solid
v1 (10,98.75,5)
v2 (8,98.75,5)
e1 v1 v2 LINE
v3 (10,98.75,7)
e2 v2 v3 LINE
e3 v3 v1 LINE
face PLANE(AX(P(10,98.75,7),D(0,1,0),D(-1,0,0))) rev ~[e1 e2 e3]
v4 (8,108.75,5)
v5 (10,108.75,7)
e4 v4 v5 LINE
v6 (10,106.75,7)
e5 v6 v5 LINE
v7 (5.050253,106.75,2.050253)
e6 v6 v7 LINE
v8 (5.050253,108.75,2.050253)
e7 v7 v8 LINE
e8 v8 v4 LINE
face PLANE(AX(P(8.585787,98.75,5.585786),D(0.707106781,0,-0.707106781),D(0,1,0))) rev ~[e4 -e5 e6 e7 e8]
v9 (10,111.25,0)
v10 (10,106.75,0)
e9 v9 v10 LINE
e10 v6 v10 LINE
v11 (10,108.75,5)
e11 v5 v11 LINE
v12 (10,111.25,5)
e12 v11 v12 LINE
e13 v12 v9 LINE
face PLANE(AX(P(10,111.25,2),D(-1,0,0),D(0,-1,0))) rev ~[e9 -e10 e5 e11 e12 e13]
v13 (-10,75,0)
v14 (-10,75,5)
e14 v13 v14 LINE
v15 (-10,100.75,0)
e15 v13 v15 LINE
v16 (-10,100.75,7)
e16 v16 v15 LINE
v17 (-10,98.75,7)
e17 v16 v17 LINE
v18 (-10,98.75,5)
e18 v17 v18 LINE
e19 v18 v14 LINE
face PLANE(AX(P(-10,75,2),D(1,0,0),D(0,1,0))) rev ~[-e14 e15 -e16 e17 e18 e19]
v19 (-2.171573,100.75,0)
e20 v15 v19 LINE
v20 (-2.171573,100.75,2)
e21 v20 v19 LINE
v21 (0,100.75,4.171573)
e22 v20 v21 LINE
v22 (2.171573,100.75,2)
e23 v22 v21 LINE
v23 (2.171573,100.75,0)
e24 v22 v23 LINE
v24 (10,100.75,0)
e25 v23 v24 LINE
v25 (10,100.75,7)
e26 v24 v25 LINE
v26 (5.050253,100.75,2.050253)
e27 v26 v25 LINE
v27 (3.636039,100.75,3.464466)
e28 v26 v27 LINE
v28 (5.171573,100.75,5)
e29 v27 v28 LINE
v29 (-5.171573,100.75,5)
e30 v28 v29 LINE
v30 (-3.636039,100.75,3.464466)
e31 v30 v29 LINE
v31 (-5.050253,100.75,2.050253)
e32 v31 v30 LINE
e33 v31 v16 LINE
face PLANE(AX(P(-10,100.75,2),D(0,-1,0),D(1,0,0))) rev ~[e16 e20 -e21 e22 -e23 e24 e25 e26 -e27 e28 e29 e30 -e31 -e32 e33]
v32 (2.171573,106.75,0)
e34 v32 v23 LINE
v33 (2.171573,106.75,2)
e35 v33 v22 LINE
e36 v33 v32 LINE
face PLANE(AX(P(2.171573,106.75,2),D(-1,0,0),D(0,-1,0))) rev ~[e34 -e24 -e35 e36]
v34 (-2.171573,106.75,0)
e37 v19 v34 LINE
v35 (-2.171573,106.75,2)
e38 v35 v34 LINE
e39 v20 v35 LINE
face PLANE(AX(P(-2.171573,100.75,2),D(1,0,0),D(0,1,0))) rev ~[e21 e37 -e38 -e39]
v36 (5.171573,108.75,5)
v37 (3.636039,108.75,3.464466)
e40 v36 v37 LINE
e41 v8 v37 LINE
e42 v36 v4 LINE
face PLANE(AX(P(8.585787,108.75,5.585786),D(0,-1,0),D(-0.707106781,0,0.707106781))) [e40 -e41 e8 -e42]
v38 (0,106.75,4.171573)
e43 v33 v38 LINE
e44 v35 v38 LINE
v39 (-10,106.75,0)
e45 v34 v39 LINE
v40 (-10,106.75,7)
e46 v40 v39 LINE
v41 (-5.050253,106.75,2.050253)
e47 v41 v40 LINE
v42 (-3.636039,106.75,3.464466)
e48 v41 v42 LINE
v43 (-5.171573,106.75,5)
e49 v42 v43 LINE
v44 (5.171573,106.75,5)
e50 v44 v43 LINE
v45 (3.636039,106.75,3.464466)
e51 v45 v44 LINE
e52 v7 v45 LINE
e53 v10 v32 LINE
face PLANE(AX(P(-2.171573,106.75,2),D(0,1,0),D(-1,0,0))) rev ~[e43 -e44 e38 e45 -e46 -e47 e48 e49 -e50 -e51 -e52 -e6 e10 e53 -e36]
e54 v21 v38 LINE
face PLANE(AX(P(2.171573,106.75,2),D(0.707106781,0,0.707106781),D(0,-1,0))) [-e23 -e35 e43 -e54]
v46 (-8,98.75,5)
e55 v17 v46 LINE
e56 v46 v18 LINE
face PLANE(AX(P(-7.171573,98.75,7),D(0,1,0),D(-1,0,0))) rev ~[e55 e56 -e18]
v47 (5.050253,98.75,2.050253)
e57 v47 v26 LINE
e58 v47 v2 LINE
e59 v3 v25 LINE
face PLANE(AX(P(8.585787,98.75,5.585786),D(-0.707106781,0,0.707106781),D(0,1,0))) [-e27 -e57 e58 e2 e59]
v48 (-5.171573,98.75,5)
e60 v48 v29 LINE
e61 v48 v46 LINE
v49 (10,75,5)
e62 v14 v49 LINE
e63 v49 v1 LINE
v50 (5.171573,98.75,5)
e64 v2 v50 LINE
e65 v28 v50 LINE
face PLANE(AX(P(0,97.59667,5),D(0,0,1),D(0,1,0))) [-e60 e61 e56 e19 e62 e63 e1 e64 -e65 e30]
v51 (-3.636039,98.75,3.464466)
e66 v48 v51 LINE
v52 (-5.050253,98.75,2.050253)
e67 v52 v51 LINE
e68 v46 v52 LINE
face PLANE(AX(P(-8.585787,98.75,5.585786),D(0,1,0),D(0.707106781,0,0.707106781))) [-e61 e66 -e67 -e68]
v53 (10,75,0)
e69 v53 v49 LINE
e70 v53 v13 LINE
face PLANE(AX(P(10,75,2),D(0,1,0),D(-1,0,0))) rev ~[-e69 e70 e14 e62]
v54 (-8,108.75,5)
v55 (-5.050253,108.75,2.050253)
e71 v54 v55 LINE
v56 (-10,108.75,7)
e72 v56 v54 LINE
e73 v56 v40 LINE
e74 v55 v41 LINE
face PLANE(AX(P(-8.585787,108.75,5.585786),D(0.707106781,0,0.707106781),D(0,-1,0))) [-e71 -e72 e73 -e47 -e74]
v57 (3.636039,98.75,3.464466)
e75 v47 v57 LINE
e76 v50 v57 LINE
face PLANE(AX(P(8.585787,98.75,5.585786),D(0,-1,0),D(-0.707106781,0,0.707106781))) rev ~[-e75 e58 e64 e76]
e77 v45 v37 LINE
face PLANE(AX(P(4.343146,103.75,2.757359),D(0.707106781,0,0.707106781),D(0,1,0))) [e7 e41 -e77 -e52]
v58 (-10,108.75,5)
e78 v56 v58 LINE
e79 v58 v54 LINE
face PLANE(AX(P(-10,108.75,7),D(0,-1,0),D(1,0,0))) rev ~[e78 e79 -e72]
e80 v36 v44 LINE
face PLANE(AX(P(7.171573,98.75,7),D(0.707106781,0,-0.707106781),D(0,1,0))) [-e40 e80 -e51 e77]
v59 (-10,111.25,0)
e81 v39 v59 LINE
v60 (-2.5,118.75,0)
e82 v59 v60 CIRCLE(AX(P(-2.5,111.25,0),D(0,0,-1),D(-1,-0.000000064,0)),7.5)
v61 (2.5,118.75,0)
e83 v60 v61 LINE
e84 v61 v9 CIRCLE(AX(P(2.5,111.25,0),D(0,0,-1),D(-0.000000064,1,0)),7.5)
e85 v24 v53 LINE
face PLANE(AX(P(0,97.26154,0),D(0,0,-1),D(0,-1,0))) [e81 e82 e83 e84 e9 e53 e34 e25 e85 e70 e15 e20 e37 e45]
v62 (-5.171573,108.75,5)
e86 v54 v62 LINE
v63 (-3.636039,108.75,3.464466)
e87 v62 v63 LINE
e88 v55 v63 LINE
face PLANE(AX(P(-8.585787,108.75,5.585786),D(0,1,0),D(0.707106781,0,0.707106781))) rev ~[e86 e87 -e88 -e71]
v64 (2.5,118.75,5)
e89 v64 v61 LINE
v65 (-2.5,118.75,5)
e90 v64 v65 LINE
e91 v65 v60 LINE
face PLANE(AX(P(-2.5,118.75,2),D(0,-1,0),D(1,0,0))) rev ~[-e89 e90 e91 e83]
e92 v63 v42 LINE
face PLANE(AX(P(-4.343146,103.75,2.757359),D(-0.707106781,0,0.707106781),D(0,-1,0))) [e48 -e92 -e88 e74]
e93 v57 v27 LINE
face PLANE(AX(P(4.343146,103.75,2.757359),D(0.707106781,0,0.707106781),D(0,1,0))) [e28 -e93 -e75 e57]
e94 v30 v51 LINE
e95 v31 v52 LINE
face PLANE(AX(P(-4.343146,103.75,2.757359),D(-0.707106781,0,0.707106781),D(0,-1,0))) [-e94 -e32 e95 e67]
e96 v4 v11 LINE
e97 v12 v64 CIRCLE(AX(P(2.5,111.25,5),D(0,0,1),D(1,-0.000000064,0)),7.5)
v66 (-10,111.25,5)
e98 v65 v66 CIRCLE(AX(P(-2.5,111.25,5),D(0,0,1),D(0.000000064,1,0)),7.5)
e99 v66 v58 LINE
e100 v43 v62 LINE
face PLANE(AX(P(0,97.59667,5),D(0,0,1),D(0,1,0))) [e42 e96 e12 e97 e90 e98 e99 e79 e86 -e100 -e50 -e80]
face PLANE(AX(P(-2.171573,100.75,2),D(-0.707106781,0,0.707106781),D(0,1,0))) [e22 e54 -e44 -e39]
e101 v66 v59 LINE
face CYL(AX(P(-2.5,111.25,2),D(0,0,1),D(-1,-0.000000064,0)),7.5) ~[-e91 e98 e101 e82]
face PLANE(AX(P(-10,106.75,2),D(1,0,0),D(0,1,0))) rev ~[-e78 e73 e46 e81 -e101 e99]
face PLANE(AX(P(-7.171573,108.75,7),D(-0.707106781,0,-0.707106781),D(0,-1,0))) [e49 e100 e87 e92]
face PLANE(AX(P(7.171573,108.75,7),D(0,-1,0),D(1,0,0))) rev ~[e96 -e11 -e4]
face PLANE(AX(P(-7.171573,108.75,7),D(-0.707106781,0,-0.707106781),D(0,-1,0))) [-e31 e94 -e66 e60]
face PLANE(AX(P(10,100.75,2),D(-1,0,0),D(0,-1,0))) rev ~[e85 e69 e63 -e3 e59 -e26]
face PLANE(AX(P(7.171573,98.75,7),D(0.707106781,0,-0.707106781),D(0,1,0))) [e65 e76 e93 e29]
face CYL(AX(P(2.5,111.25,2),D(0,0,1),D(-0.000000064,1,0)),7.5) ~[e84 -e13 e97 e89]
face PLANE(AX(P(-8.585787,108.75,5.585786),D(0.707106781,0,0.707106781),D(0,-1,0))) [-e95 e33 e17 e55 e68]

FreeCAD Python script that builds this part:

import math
import FreeCAD as App
import Part
import Sketcher
Q = App.Units.Quantity

doc = App.newDocument("Part")
params = doc.addObject("Spreadsheet::Sheet", "Params")
for row, (alias, value) in enumerate([
    ("sketch1_radius", "7.5 mm"),
    ("sketch1_width", "20 mm"),
    ("sketch1_height", "36.25 mm"),
    ("pad1_length", "5 mm"),
    ("sketch2_height", "5 mm"),
    ("sketch2_length", "2.000001 mm"),
    ("pocket1_length", "3 mm"),
    ("pocket1_length2", "3 mm"),
    ("sketch3_width", "10 mm"),
    ("sketch3_height", "2 mm"),
    ("pocket2_length", "5 mm"),
    ("pocket2_length2", "2 mm"),
    ("sketch4_width", "10 mm"),
    ("sketch4_height", "2 mm"),
    ("pocket3_length", "5 mm"),
    ("pocket3_length2", "2 mm"),
    ("sketch5_width", "6 mm"),
    ("sketch5_height", "5 mm"),
    ("pocket4_length", "5 mm"),
    ("sketch6_width", "6 mm"),
    ("sketch6_height", "5 mm"),
    ("pocket5_length", "5 mm"),
    ("sketch7_radius", "7.5 mm"),
    ("sketch7_width", "5 mm"),
    ("sketch7_height", "6 mm"),
    ("sketch7_height2", "4.5 mm"),
    ("sketch7_height3", "25.75 mm"),
    ("pad2_length", "2 mm"),
    ("sketch8_radius", "7.5 mm"),
    ("sketch8_width", "20 mm"),
    ("sketch8_height", "6 mm"),
    ("sketch8_height2", "2 mm"),
    ("sketch8_height3", "2.5 mm"),
    ("pocket6_length", "2 mm"),
    ("sketch9_width", "6 mm"),
    ("pocket7_length", "5 mm"),
    ("sketch10_width", "6 mm"),
    ("pocket8_length", "5 mm"),
], start=1):
    params.set(f"A{row}", alias)
    params.set(f"B{row}", "=" + value)
    params.setAlias(f"B{row}", alias)

body = doc.addObject("PartDesign::Body", "Body")

sketch1 = body.newObject("Sketcher::SketchObject", "Sketch")
sketch1.AttachmentSupport = (doc.getObject("XY_Plane"), [""])
sketch1.MapMode = "FlatFace"
sketch1.addGeometry(Part.LineSegment(App.Vector(-10, -29, 0), App.Vector(10, -29, 0)), False)
sketch1.addGeometry(Part.LineSegment(App.Vector(10, -29, 0), App.Vector(10, 8, 0)), False)
sketch1.addGeometry(Part.ArcOfCircle(Part.Circle(App.Vector(3, 8, 0), App.Vector(0, 0, 1), 7), math.radians(0), math.radians(90)), False)
sketch1.addGeometry(Part.LineSegment(App.Vector(2, 15, 0), App.Vector(-2, 15, 0)), False)
sketch1.addGeometry(Part.ArcOfCircle(Part.Circle(App.Vector(-3, 8, 0), App.Vector(0, 0, 1), 7), math.radians(90), math.radians(180)), False)
sketch1.addGeometry(Part.LineSegment(App.Vector(-10, 8, 0), App.Vector(-10, -29, 0)), False)
sketch1.addConstraint(Sketcher.Constraint("Coincident", 0, 2, 1, 1))
sketch1.addConstraint(Sketcher.Constraint("Tangent", 1, 2, 2, 1))
sketch1.addConstraint(Sketcher.Constraint("Tangent", 2, 2, 3, 1))
sketch1.addConstraint(Sketcher.Constraint("Tangent", 3, 2, 4, 1))
sketch1.addConstraint(Sketcher.Constraint("Tangent", 4, 2, 5, 1))
sketch1.addConstraint(Sketcher.Constraint("Coincident", 5, 2, 0, 1))
sketch1.addConstraint(Sketcher.Constraint("Horizontal", 0))
sketch1.addConstraint(Sketcher.Constraint("Vertical", 1))
sketch1.addConstraint(Sketcher.Constraint("Horizontal", 3))
sketch1.addConstraint(Sketcher.Constraint("Vertical", 5))
sketch1.addConstraint(Sketcher.Constraint("Equal", 2, 4))
sketch1.addConstraint(Sketcher.Constraint("Radius", 2, Q("7.5 mm")))
sketch1.addConstraint(Sketcher.Constraint("DistanceX", 0, 1, 0, 2, Q("20 mm")))
sketch1.addConstraint(Sketcher.Constraint("DistanceX", -1, 1, 0, 2, Q("10 mm")))
sketch1.addConstraint(Sketcher.Constraint("DistanceY", -1, 1, 2, 2, Q("15 mm")))
sketch1.addConstraint(Sketcher.Constraint("DistanceY", 1, 1, 1, 2, Q("36.25 mm")))
sketch1.setExpression("Constraints[11]", "Params.sketch1_radius")
sketch1.setExpression("Constraints[12]", "Params.sketch1_width")
sketch1.setExpression("Constraints[15]", "Params.sketch1_height")
pad1 = body.newObject("PartDesign::Pad", "Pad")
pad1.Profile = sketch1
pad1.setExpression("Length", "Params.pad1_length")

sketch2 = body.newObject("Sketcher::SketchObject", "Sketch001")
sketch2.AttachmentSupport = (doc.getObject("XZ_Plane"), [""])
sketch2.MapMode = "FlatFace"
sketch2.addGeometry(Part.LineSegment(App.Vector(-10, 5, 0), App.Vector(-10, 0, 0)), False)
sketch2.addGeometry(Part.LineSegment(App.Vector(-10, 0, 0), App.Vector(-2.2, 0, 0)), False)
sketch2.addGeometry(Part.LineSegment(App.Vector(-2.2, 0, 0), App.Vector(-8.6, 6.4, 0)), False)
sketch2.addGeometry(Part.LineSegment(App.Vector(-8.6, 6.4, 0), App.Vector(-10, 5, 0)), False)
sketch2.addGeometry(Part.LineSegment(App.Vector(10, 0, 0), App.Vector(10, 5, 0)), False)
sketch2.addGeometry(Part.LineSegment(App.Vector(10, 5, 0), App.Vector(8.6, 6.4, 0)), False)
sketch2.addGeometry(Part.LineSegment(App.Vector(8.6, 6.4, 0), App.Vector(2.2, 0, 0)), False)
sketch2.addGeometry(Part.LineSegment(App.Vector(2.2, 0, 0), App.Vector(10, 0, 0)), False)
sketch2.addConstraint(Sketcher.Constraint("Coincident", 0, 2, 1, 1))
sketch2.addConstraint(Sketcher.Constraint("Coincident", 1, 2, 2, 1))
sketch2.addConstraint(Sketcher.Constraint("Coincident", 2, 2, 3, 1))
sketch2.addConstraint(Sketcher.Constraint("Coincident", 3, 2, 0, 1))
sketch2.addConstraint(Sketcher.Constraint("Coincident", 4, 2, 5, 1))
sketch2.addConstraint(Sketcher.Constraint("Coincident", 5, 2, 6, 1))
sketch2.addConstraint(Sketcher.Constraint("Coincident", 6, 2, 7, 1))
sketch2.addConstraint(Sketcher.Constraint("Coincident", 7, 2, 4, 1))
sketch2.addConstraint(Sketcher.Constraint("Vertical", 0))
sketch2.addConstraint(Sketcher.Constraint("Horizontal", 1))
sketch2.addConstraint(Sketcher.Constraint("Vertical", 4))
sketch2.addConstraint(Sketcher.Constraint("Horizontal", 7))
sketch2.addConstraint(Sketcher.Constraint("Symmetric", 1, 2, 6, 2, -1, 1))
sketch2.addConstraint(Sketcher.Constraint("Symmetric", 3, 2, 4, 2, -2))
sketch2.addConstraint(Sketcher.Constraint("Symmetric", 2, 2, 5, 2, -2))
sketch2.addConstraint(Sketcher.Constraint("PointOnObject", 0, 2, -1))
sketch2.addConstraint(Sketcher.Constraint("Perpendicular", 2, 3))
sketch2.addConstraint(Sketcher.Constraint("Perpendicular", 3, 5))
sketch2.addConstraint(Sketcher.Constraint("DistanceY", 0, 2, 0, 1, Q("5 mm")))
sketch2.addConstraint(Sketcher.Constraint("Distance", 3, Q("2.000001 mm")))
sketch2.addConstraint(Sketcher.Constraint("DistanceX", 0, 2, -1, 1, Q("10 mm")))
sketch2.setExpression("Constraints[18]", "Params.sketch2_height")
sketch2.setExpression("Constraints[19]", "Params.sketch2_length")
pocket1 = body.newObject("PartDesign::Pocket", "Pocket")
pocket1.Profile = sketch2
pocket1.Type = "TwoLengths"
pocket1.setExpression("Length", "Params.pocket1_length")
pocket1.setExpression("Length2", "Params.pocket1_length2")

sketch3 = body.newObject("Sketcher::SketchObject", "Sketch002")
sketch3.Placement = App.Placement(App.Vector(-7.171573, 3, 5), App.Rotation(App.Vector(0, -1, 0), App.Vector(0.707106781, 0, 0.707106781), App.Vector(-0.707106781, 0, 0.707106781), "ZXY"))
sketch3.addGeometry(Part.LineSegment(App.Vector(-2, 0, 0), App.Vector(-2, -2, 0)), False)
sketch3.addGeometry(Part.LineSegment(App.Vector(-2, -2, 0), App.Vector(8, -2, 0)), False)
sketch3.addGeometry(Part.LineSegment(App.Vector(8, -2, 0), App.Vector(8, 0, 0)), False)
sketch3.addGeometry(Part.LineSegment(App.Vector(8, 0, 0), App.Vector(-2, 0, 0)), False)
sketch3.addConstraint(Sketcher.Constraint("Coincident", 0, 2, 1, 1))
sketch3.addConstraint(Sketcher.Constraint("Coincident", 1, 2, 2, 1))
sketch3.addConstraint(Sketcher.Constraint("Coincident", 2, 2, 3, 1))
sketch3.addConstraint(Sketcher.Constraint("Coincident", 3, 2, 0, 1))
sketch3.addConstraint(Sketcher.Constraint("Vertical", 0))
sketch3.addConstraint(Sketcher.Constraint("Horizontal", 1))
sketch3.addConstraint(Sketcher.Constraint("Vertical", 2))
sketch3.addConstraint(Sketcher.Constraint("Horizontal", 3))
sketch3.addConstraint(Sketcher.Constraint("PointOnObject", 2, 2, -1))
sketch3.addConstraint(Sketcher.Constraint("DistanceX", 1, 1, 1, 2, Q("10 mm")))
sketch3.addConstraint(Sketcher.Constraint("DistanceY", 0, 2, 0, 1, Q("2 mm")))
sketch3.addConstraint(Sketcher.Constraint("DistanceX", 0, 2, -1, 1, Q("2 mm")))
sketch3.setExpression("Constraints[9]", "Params.sketch3_width")
sketch3.setExpression("Constraints[10]", "Params.sketch3_height")
pocket2 = body.newObject("PartDesign::Pocket", "Pocket001")
pocket2.Profile = sketch3
pocket2.Type = "TwoLengths"
pocket2.setExpression("Length", "Params.pocket2_length")
pocket2.setExpression("Length2", "Params.pocket2_length2")

sketch4 = body.newObject("Sketcher::SketchObject", "Sketch003")
sketch4.Placement = App.Placement(App.Vector(7.171573, 3, 5), App.Rotation(App.Vector(0, 1, 0), App.Vector(-0.707106781, 0, 0.707106781), App.Vector(0.707106781, 0, 0.707106781), "ZXY"))
sketch4.addGeometry(Part.LineSegment(App.Vector(-8, 0, 0), App.Vector(-8, -2, 0)), False)
sketch4.addGeometry(Part.LineSegment(App.Vector(-8, -2, 0), App.Vector(2, -2, 0)), False)
sketch4.addGeometry(Part.LineSegment(App.Vector(2, -2, 0), App.Vector(2, 0, 0)), False)
sketch4.addGeometry(Part.LineSegment(App.Vector(2, 0, 0), App.Vector(-8, 0, 0)), False)
sketch4.addConstraint(Sketcher.Constraint("Coincident", 0, 2, 1, 1))
sketch4.addConstraint(Sketcher.Constraint("Coincident", 1, 2, 2, 1))
sketch4.addConstraint(Sketcher.Constraint("Coincident", 2, 2, 3, 1))
sketch4.addConstraint(Sketcher.Constraint("Coincident", 3, 2, 0, 1))
sketch4.addConstraint(Sketcher.Constraint("Vertical", 0))
sketch4.addConstraint(Sketcher.Constraint("Horizontal", 1))
sketch4.addConstraint(Sketcher.Constraint("Vertical", 2))
sketch4.addConstraint(Sketcher.Constraint("Horizontal", 3))
sketch4.addConstraint(Sketcher.Constraint("PointOnObject", 2, 2, -1))
sketch4.addConstraint(Sketcher.Constraint("DistanceX", 1, 1, 1, 2, Q("10 mm")))
sketch4.addConstraint(Sketcher.Constraint("DistanceY", 0, 2, 0, 1, Q("2 mm")))
sketch4.addConstraint(Sketcher.Constraint("DistanceX", 0, 2, -1, 1, Q("8 mm")))
sketch4.setExpression("Constraints[9]", "Params.sketch4_width")
sketch4.setExpression("Constraints[10]", "Params.sketch4_height")
pocket3 = body.newObject("PartDesign::Pocket", "Pocket002")
pocket3.Profile = sketch4
pocket3.Type = "TwoLengths"
pocket3.setExpression("Length", "Params.pocket3_length")
pocket3.setExpression("Length2", "Params.pocket3_length2")

sketch5 = body.newObject("Sketcher::SketchObject", "Sketch004")
sketch5.Placement = App.Placement(App.Vector(-5.403806, 0, 3.232233), App.Rotation(App.Vector(0, 1, 0), App.Vector(0.707106781, 0, -0.707106781), App.Vector(-0.707106781, 0, -0.707106781), "ZXY"))
sketch5.addGeometry(Part.LineSegment(App.Vector(-3, 2.5, 0), App.Vector(-3, -2.5, 0)), False)
sketch5.addGeometry(Part.LineSegment(App.Vector(-3, -2.5, 0), App.Vector(3, -2.5, 0)), False)
sketch5.addGeometry(Part.LineSegment(App.Vector(3, -2.5, 0), App.Vector(3, 2.5, 0)), False)
sketch5.addGeometry(Part.LineSegment(App.Vector(3, 2.5, 0), App.Vector(-3, 2.5, 0)), False)
sketch5.addConstraint(Sketcher.Constraint("Coincident", 0, 2, 1, 1))
sketch5.addConstraint(Sketcher.Constraint("Coincident", 1, 2, 2, 1))
sketch5.addConstraint(Sketcher.Constraint("Coincident", 2, 2, 3, 1))
sketch5.addConstraint(Sketcher.Constraint("Coincident", 3, 2, 0, 1))
sketch5.addConstraint(Sketcher.Constraint("Vertical", 0))
sketch5.addConstraint(Sketcher.Constraint("Horizontal", 1))
sketch5.addConstraint(Sketcher.Constraint("Vertical", 2))
sketch5.addConstraint(Sketcher.Constraint("Horizontal", 3))
sketch5.addConstraint(Sketcher.Constraint("Symmetric", 0, 2, 2, 2, -1, 1))
sketch5.addConstraint(Sketcher.Constraint("DistanceX", 1, 1, 1, 2, Q("6 mm")))
sketch5.addConstraint(Sketcher.Constraint("DistanceY", 0, 2, 0, 1, Q("5 mm")))
sketch5.setExpression("Constraints[9]", "Params.sketch5_width")
sketch5.setExpression("Constraints[10]", "Params.sketch5_height")
pocket4 = body.newObject("PartDesign::Pocket", "Pocket003")
pocket4.Profile = sketch5
pocket4.setExpression("Length", "Params.pocket4_length")

sketch6 = body.newObject("Sketcher::SketchObject", "Sketch005")
sketch6.Placement = App.Placement(App.Vector(5.403806, 0, 3.232233), App.Rotation(App.Vector(0, -1, 0), App.Vector(-0.707106781, 0, -0.707106781), App.Vector(0.707106781, 0, -0.707106781), "ZXY"))
sketch6.addGeometry(Part.LineSegment(App.Vector(-3, 2.5, 0), App.Vector(-3, -2.5, 0)), False)
sketch6.addGeometry(Part.LineSegment(App.Vector(-3, -2.5, 0), App.Vector(3, -2.5, 0)), False)
sketch6.addGeometry(Part.LineSegment(App.Vector(3, -2.5, 0), App.Vector(3, 2.5, 0)), False)
sketch6.addGeometry(Part.LineSegment(App.Vector(3, 2.5, 0), App.Vector(-3, 2.5, 0)), False)
sketch6.addConstraint(Sketcher.Constraint("Coincident", 0, 2, 1, 1))
sketch6.addConstraint(Sketcher.Constraint("Coincident", 1, 2, 2, 1))
sketch6.addConstraint(Sketcher.Constraint("Coincident", 2, 2, 3, 1))
sketch6.addConstraint(Sketcher.Constraint("Coincident", 3, 2, 0, 1))
sketch6.addConstraint(Sketcher.Constraint("Vertical", 0))
sketch6.addConstraint(Sketcher.Constraint("Horizontal", 1))
sketch6.addConstraint(Sketcher.Constraint("Vertical", 2))
sketch6.addConstraint(Sketcher.Constraint("Horizontal", 3))
sketch6.addConstraint(Sketcher.Constraint("Symmetric", 0, 2, 2, 2, -1, 1))
sketch6.addConstraint(Sketcher.Constraint("DistanceX", 1, 1, 1, 2, Q("6 mm")))
sketch6.addConstraint(Sketcher.Constraint("DistanceY", 0, 2, 0, 1, Q("5 mm")))
sketch6.setExpression("Constraints[9]", "Params.sketch6_width")
sketch6.setExpression("Constraints[10]", "Params.sketch6_height")
pocket5 = body.newObject("PartDesign::Pocket", "Pocket004")
pocket5.Profile = sketch6
pocket5.setExpression("Length", "Params.pocket5_length")

sketch7 = body.newObject("Sketcher::SketchObject", "Sketch006")
sketch7.AttachmentSupport = (doc.getObject("XY_Plane"), [""])
sketch7.MapMode = "FlatFace"
sketch7.addGeometry(Part.LineSegment(App.Vector(-10, -28.8, 0), App.Vector(-10, -3, 0)), False)
sketch7.addGeometry(Part.LineSegment(App.Vector(-10, -3, 0), App.Vector(-2.2, -3, 0)), False)
sketch7.addGeometry(Part.LineSegment(App.Vector(-2.2, -3, 0), App.Vector(-2.2, 3, 0)), False)
sketch7.addGeometry(Part.LineSegment(App.Vector(-2.2, 3, 0), App.Vector(-10, 3, 0)), False)
sketch7.addGeometry(Part.LineSegment(App.Vector(-10, 3, 0), App.Vector(-10, 7.5, 0)), False)
sketch7.addGeometry(Part.ArcOfCircle(Part.Circle(App.Vector(-2.5, 7.5, 0), App.Vector(0, 0, 1), 7.5), math.radians(90), math.radians(180)), False)
sketch7.addGeometry(Part.LineSegment(App.Vector(-2.5, 15, 0), App.Vector(2.5, 15, 0)), False)
sketch7.addGeometry(Part.ArcOfCircle(Part.Circle(App.Vector(2.5, 7.5, 0), App.Vector(0, 0, 1), 7.5), math.radians(0), math.radians(90)), False)
sketch7.addGeometry(Part.LineSegment(App.Vector(10, 7.5, 0), App.Vector(10, 3, 0)), False)
sketch7.addGeometry(Part.LineSegment(App.Vector(10, 3, 0), App.Vector(2.2, 3, 0)), False)
sketch7.addGeometry(Part.LineSegment(App.Vector(2.2, 3, 0), App.Vector(2.2, -3, 0)), False)
sketch7.addGeometry(Part.LineSegment(App.Vector(2.2, -3, 0), App.Vector(10, -3, 0)), False)
sketch7.addGeometry(Part.LineSegment(App.Vector(10, -3, 0), App.Vector(10, -28.8, 0)), False)
sketch7.addGeometry(Part.LineSegment(App.Vector(10, -28.8, 0), App.Vector(-10, -28.8, 0)), False)
sketch7.addConstraint(Sketcher.Constraint("Coincident", 0, 2, 1, 1))
sketch7.addConstraint(Sketcher.Constraint("Coincident", 1, 2, 2, 1))
sketch7.addConstraint(Sketcher.Constraint("Coincident", 2, 2, 3, 1))
sketch7.addConstraint(Sketcher.Constraint("Coincident", 3, 2, 4, 1))
sketch7.addConstraint(Sketcher.Constraint("Tangent", 4, 2, 5, 2))
sketch7.addConstraint(Sketcher.Constraint("Tangent", 5, 1, 6, 1))
sketch7.addConstraint(Sketcher.Constraint("Tangent", 6, 2, 7, 2))
sketch7.addConstraint(Sketcher.Constraint("Tangent", 7, 1, 8, 1))
sketch7.addConstraint(Sketcher.Constraint("Coincident", 8, 2, 9, 1))
sketch7.addConstraint(Sketcher.Constraint("Coincident", 9, 2, 10, 1))
sketch7.addConstraint(Sketcher.Constraint("Coincident", 10, 2, 11, 1))
sketch7.addConstraint(Sketcher.Constraint("Coincident", 11, 2, 12, 1))
sketch7.addConstraint(Sketcher.Constraint("Coincident", 12, 2, 13, 1))
sketch7.addConstraint(Sketcher.Constraint("Coincident", 13, 2, 0, 1))
sketch7.addConstraint(Sketcher.Constraint("Vertical", 0))
sketch7.addConstraint(Sketcher.Constraint("Horizontal", 1))
sketch7.addConstraint(Sketcher.Constraint("Vertical", 2))
sketch7.addConstraint(Sketcher.Constraint("Horizontal", 3))
sketch7.addConstraint(Sketcher.Constraint("Vertical", 4))
sketch7.addConstraint(Sketcher.Constraint("Horizontal", 6))
sketch7.addConstraint(Sketcher.Constraint("Vertical", 8))
sketch7.addConstraint(Sketcher.Constraint("Horizontal", 9))
sketch7.addConstraint(Sketcher.Constraint("Vertical", 10))
sketch7.addConstraint(Sketcher.Constraint("Horizontal", 11))
sketch7.addConstraint(Sketcher.Constraint("Vertical", 12))
sketch7.addConstraint(Sketcher.Constraint("Horizontal", 13))
sketch7.addConstraint(Sketcher.Constraint("Equal", 5, 7))
sketch7.addConstraint(Sketcher.Constraint("Symmetric", 0, 2, 8, 2, -1, 1))
sketch7.addConstraint(Sketcher.Constraint("Symmetric", 2, 2, 10, 2, -1, 1))
sketch7.addConstraint(Sketcher.Constraint("Symmetric", 3, 2, 8, 2, -2))
sketch7.addConstraint(Sketcher.Constraint("Vertical", 8, 2, 11, 2))
sketch7.addConstraint(Sketcher.Constraint("Radius", 5, Q("7.5 mm")))
sketch7.addConstraint(Sketcher.Constraint("DistanceX", 6, 1, 6, 2, Q("5 mm")))
sketch7.addConstraint(Sketcher.Constraint("DistanceY", 2, 1, 2, 2, Q("6 mm")))
sketch7.addConstraint(Sketcher.Constraint("DistanceY", 4, 1, 4, 2, Q("4.5 mm")))
sketch7.addConstraint(Sketcher.Constraint("DistanceY", 0, 1, 0, 2, Q("25.75 mm")))
sketch7.addConstraint(Sketcher.Constraint("DistanceX", 1, 1, 1, 2, Q("7.828427 mm")))
sketch7.setExpression("Constraints[31]", "Params.sketch7_radius")
sketch7.setExpression("Constraints[32]", "Params.sketch7_width")
sketch7.setExpression("Constraints[33]", "Params.sketch7_height")
sketch7.setExpression("Constraints[34]", "Params.sketch7_height2")
sketch7.setExpression("Constraints[35]", "Params.sketch7_height3")
pad2 = body.newObject("PartDesign::Pad", "Pad001")
pad2.Profile = sketch7
pad2.setExpression("Length", "Params.pad2_length")
pad2.Reversed = True

sketch8 = body.newObject("Sketcher::SketchObject", "Sketch007")
sketch8.AttachmentSupport = (doc.getObject("XY_Plane"), [""])
sketch8.MapMode = "FlatFace"
sketch8.AttachmentOffset = App.Placement(App.Vector(0, 0, 5), App.Rotation())
sketch8.addGeometry(Part.LineSegment(App.Vector(-0.1, 3, 0), App.Vector(-0.1, -3, 0)), False)
sketch8.addGeometry(Part.LineSegment(App.Vector(-0.1, -3, 0), App.Vector(-7.2, -3, 0)), False)
sketch8.addGeometry(Part.LineSegment(App.Vector(-7.2, -3, 0), App.Vector(-7.2, -5, 0)), False)
sketch8.addGeometry(Part.LineSegment(App.Vector(-7.2, -5, 0), App.Vector(-10, -5, 0)), False)
sketch8.addGeometry(Part.LineSegment(App.Vector(-10, -5, 0), App.Vector(-10, -28.8, 0)), False)
sketch8.addGeometry(Part.LineSegment(App.Vector(-10, -28.8, 0), App.Vector(10, -28.8, 0)), False)
sketch8.addGeometry(Part.LineSegment(App.Vector(10, -28.8, 0), App.Vector(10, -5, 0)), False)
sketch8.addGeometry(Part.LineSegment(App.Vector(10, -5, 0), App.Vector(7.2, -5, 0)), False)
sketch8.addGeometry(Part.LineSegment(App.Vector(7.2, -5, 0), App.Vector(7.2, -3, 0)), False)
sketch8.addGeometry(Part.LineSegment(App.Vector(7.2, -3, 0), App.Vector(0.1, -3, 0)), False)
sketch8.addGeometry(Part.LineSegment(App.Vector(0.1, -3, 0), App.Vector(0.1, 3, 0)), False)
sketch8.addGeometry(Part.LineSegment(App.Vector(0.1, 3, 0), App.Vector(7.2, 3, 0)), False)
sketch8.addGeometry(Part.LineSegment(App.Vector(7.2, 3, 0), App.Vector(7.2, 5, 0)), False)
sketch8.addGeometry(Part.LineSegment(App.Vector(7.2, 5, 0), App.Vector(10, 5, 0)), False)
sketch8.addGeometry(Part.LineSegment(App.Vector(10, 5, 0), App.Vector(10, 7.5, 0)), False)
sketch8.addGeometry(Part.ArcOfCircle(Part.Circle(App.Vector(2.5, 7.5, 0), App.Vector(0, 0, 1), 7.5), math.radians(0), math.radians(90)), False)
sketch8.addGeometry(Part.LineSegment(App.Vector(2.5, 15, 0), App.Vector(-2.5, 15, 0)), False)
sketch8.addGeometry(Part.ArcOfCircle(Part.Circle(App.Vector(-2.5, 7.5, 0), App.Vector(0, 0, 1), 7.5), math.radians(90), math.radians(180)), False)
sketch8.addGeometry(Part.LineSegment(App.Vector(-10, 7.5, 0), App.Vector(-10, 5, 0)), False)
sketch8.addGeometry(Part.LineSegment(App.Vector(-10, 5, 0), App.Vector(-7.2, 5, 0)), False)
sketch8.addGeometry(Part.LineSegment(App.Vector(-7.2, 5, 0), App.Vector(-7.2, 3, 0)), False)
sketch8.addGeometry(Part.LineSegment(App.Vector(-7.2, 3, 0), App.Vector(-0.1, 3, 0)), False)
sketch8.addConstraint(Sketcher.Constraint("Coincident", 0, 2, 1, 1))
sketch8.addConstraint(Sketcher.Constraint("Coincident", 1, 2, 2, 1))
sketch8.addConstraint(Sketcher.Constraint("Coincident", 2, 2, 3, 1))
sketch8.addConstraint(Sketcher.Constraint("Coincident", 3, 2, 4, 1))
sketch8.addConstraint(Sketcher.Constraint("Coincident", 4, 2, 5, 1))
sketch8.addConstraint(Sketcher.Constraint("Coincident", 5, 2, 6, 1))
sketch8.addConstraint(Sketcher.Constraint("Coincident", 6, 2, 7, 1))
sketch8.addConstraint(Sketcher.Constraint("Coincident", 7, 2, 8, 1))
sketch8.addConstraint(Sketcher.Constraint("Coincident", 8, 2, 9, 1))
sketch8.addConstraint(Sketcher.Constraint("Coincident", 9, 2, 10, 1))
sketch8.addConstraint(Sketcher.Constraint("Coincident", 10, 2, 11, 1))
sketch8.addConstraint(Sketcher.Constraint("Coincident", 11, 2, 12, 1))
sketch8.addConstraint(Sketcher.Constraint("Coincident", 12, 2, 13, 1))
sketch8.addConstraint(Sketcher.Constraint("Coincident", 13, 2, 14, 1))
sketch8.addConstraint(Sketcher.Constraint("Tangent", 14, 2, 15, 1))
sketch8.addConstraint(Sketcher.Constraint("Tangent", 15, 2, 16, 1))
sketch8.addConstraint(Sketcher.Constraint("Tangent", 16, 2, 17, 1))
sketch8.addConstraint(Sketcher.Constraint("Tangent", 17, 2, 18, 1))
sketch8.addConstraint(Sketcher.Constraint("Coincident", 18, 2, 19, 1))
sketch8.addConstraint(Sketcher.Constraint("Coincident", 19, 2, 20, 1))
sketch8.addConstraint(Sketcher.Constraint("Coincident", 20, 2, 21, 1))
sketch8.addConstraint(Sketcher.Constraint("Coincident", 21, 2, 0, 1))
sketch8.addConstraint(Sketcher.Constraint("Vertical", 0))
sketch8.addConstraint(Sketcher.Constraint("Horizontal", 1))
sketch8.addConstraint(Sketcher.Constraint("Vertical", 2))
sketch8.addConstraint(Sketcher.Constraint("Horizontal", 3))
sketch8.addConstraint(Sketcher.Constraint("Vertical", 4))
sketch8.addConstraint(Sketcher.Constraint("Horizontal", 5))
sketch8.addConstraint(Sketcher.Constraint("Vertical", 6))
sketch8.addConstraint(Sketcher.Constraint("Horizontal", 7))
sketch8.addConstraint(Sketcher.Constraint("Vertical", 8))
sketch8.addConstraint(Sketcher.Constraint("Horizontal", 9))
sketch8.addConstraint(Sketcher.Constraint("Vertical", 10))
sketch8.addConstraint(Sketcher.Constraint("Horizontal", 11))
sketch8.addConstraint(Sketcher.Constraint("Vertical", 12))
sketch8.addConstraint(Sketcher.Constraint("Horizontal", 13))
sketch8.addConstraint(Sketcher.Constraint("Vertical", 14))
sketch8.addConstraint(Sketcher.Constraint("Horizontal", 16))
sketch8.addConstraint(Sketcher.Constraint("Vertical", 18))
sketch8.addConstraint(Sketcher.Constraint("Horizontal", 19))
sketch8.addConstraint(Sketcher.Constraint("Vertical", 20))
sketch8.addConstraint(Sketcher.Constraint("Horizontal", 21))
sketch8.addConstraint(Sketcher.Constraint("Equal", 15, 17))
sketch8.addConstraint(Sketcher.Constraint("Symmetric", 0, 2, 10, 2, -1, 1))
sketch8.addConstraint(Sketcher.Constraint("Symmetric", 2, 2, 12, 2, -1, 1))
sketch8.addConstraint(Sketcher.Constraint("Symmetric", 6, 2, 18, 2, -1, 1))
sketch8.addConstraint(Sketcher.Constraint("Symmetric", 8, 2, 20, 2, -1, 1))
sketch8.addConstraint(Sketcher.Constraint("Symmetric", 3, 2, 6, 2, -2))
sketch8.addConstraint(Sketcher.Constraint("Symmetric", 1, 2, 8, 2, -2))
sketch8.addConstraint(Sketcher.Constraint("Vertical", 6, 2, 13, 2))
sketch8.addConstraint(Sketcher.Constraint("Radius", 15, Q("7.5 mm")))
sketch8.addConstraint(Sketcher.Constraint("DistanceX", 5, 1, 5, 2, Q("20 mm")))
sketch8.addConstraint(Sketcher.Constraint("DistanceY", 0, 2, 0, 1, Q("6 mm")))
sketch8.addConstraint(Sketcher.Constraint("DistanceY", 2, 2, 2, 1, Q("2 mm")))
sketch8.addConstraint(Sketcher.Constraint("DistanceY", 14, 1, 14, 2, Q("2.5 mm")))
sketch8.addConstraint(Sketcher.Constraint("DistanceY", 4, 2, 4, 1, Q("23.75 mm")))
sketch8.addConstraint(Sketcher.Constraint("DistanceX", 1, 2, 1, 1, Q("7.071068 mm")))
sketch8.addConstraint(Sketcher.Constraint("DistanceX", 3, 2, 3, 1, Q("2.828427 mm")))
sketch8.setExpression("Constraints[50]", "Params.sketch8_radius")
sketch8.setExpression("Constraints[51]", "Params.sketch8_width")
sketch8.setExpression("Constraints[52]", "Params.sketch8_height")
sketch8.setExpression("Constraints[53]", "Params.sketch8_height2")
sketch8.setExpression("Constraints[54]", "Params.sketch8_height3")
pocket6 = body.newObject("PartDesign::Pocket", "Pocket005")
pocket6.Profile = sketch8
pocket6.setExpression("Length", "Params.pocket6_length")

sketch9 = body.newObject("Sketcher::SketchObject", "Sketch008")
sketch9.Placement = App.Placement(App.Vector(-2.903806, 0, 0.732233), App.Rotation(App.Vector(0, 1, 0), App.Vector(0.707106781, 0, -0.707106781), App.Vector(-0.707106781, 0, -0.707106781), "ZXY"))
sketch9.addGeometry(Part.LineSegment(App.Vector(-3, 1, 0), App.Vector(-3, -1, 0)), False)
sketch9.addGeometry(Part.LineSegment(App.Vector(-3, -1, 0), App.Vector(3, -1, 0)), False)
sketch9.addGeometry(Part.LineSegment(App.Vector(3, -1, 0), App.Vector(3, 1, 0)), False)
sketch9.addGeometry(Part.LineSegment(App.Vector(3, 1, 0), App.Vector(-3, 1, 0)), False)
sketch9.addConstraint(Sketcher.Constraint("Coincident", 0, 2, 1, 1))
sketch9.addConstraint(Sketcher.Constraint("Coincident", 1, 2, 2, 1))
sketch9.addConstraint(Sketcher.Constraint("Coincident", 2, 2, 3, 1))
sketch9.addConstraint(Sketcher.Constraint("Coincident", 3, 2, 0, 1))
sketch9.addConstraint(Sketcher.Constraint("Vertical", 0))
sketch9.addConstraint(Sketcher.Constraint("Horizontal", 1))
sketch9.addConstraint(Sketcher.Constraint("Vertical", 2))
sketch9.addConstraint(Sketcher.Constraint("Horizontal", 3))
sketch9.addConstraint(Sketcher.Constraint("Symmetric", 0, 2, 2, 2, -1, 1))
sketch9.addConstraint(Sketcher.Constraint("DistanceX", 1, 1, 1, 2, Q("6 mm")))
sketch9.addConstraint(Sketcher.Constraint("DistanceY", 0, 2, 0, 1, Q("2.071068 mm")))
sketch9.setExpression("Constraints[9]", "Params.sketch9_width")
pocket7 = body.newObject("PartDesign::Pocket", "Pocket006")
pocket7.Profile = sketch9
pocket7.setExpression("Length", "Params.pocket7_length")

sketch10 = body.newObject("Sketcher::SketchObject", "Sketch009")
sketch10.Placement = App.Placement(App.Vector(2.903806, 0, 0.732233), App.Rotation(App.Vector(0, -1, 0), App.Vector(-0.707106781, 0, -0.707106781), App.Vector(0.707106781, 0, -0.707106781), "ZXY"))
sketch10.addGeometry(Part.LineSegment(App.Vector(-3, 1, 0), App.Vector(-3, -1, 0)), False)
sketch10.addGeometry(Part.LineSegment(App.Vector(-3, -1, 0), App.Vector(3, -1, 0)), False)
sketch10.addGeometry(Part.LineSegment(App.Vector(3, -1, 0), App.Vector(3, 1, 0)), False)
sketch10.addGeometry(Part.LineSegment(App.Vector(3, 1, 0), App.Vector(-3, 1, 0)), False)
sketch10.addConstraint(Sketcher.Constraint("Coincident", 0, 2, 1, 1))
sketch10.addConstraint(Sketcher.Constraint("Coincident", 1, 2, 2, 1))
sketch10.addConstraint(Sketcher.Constraint("Coincident", 2, 2, 3, 1))
sketch10.addConstraint(Sketcher.Constraint("Coincident", 3, 2, 0, 1))
sketch10.addConstraint(Sketcher.Constraint("Vertical", 0))
sketch10.addConstraint(Sketcher.Constraint("Horizontal", 1))
sketch10.addConstraint(Sketcher.Constraint("Vertical", 2))
sketch10.addConstraint(Sketcher.Constraint("Horizontal", 3))
sketch10.addConstraint(Sketcher.Constraint("Symmetric", 0, 2, 2, 2, -1, 1))
sketch10.addConstraint(Sketcher.Constraint("DistanceX", 1, 1, 1, 2, Q("6 mm")))
sketch10.addConstraint(Sketcher.Constraint("DistanceY", 0, 2, 0, 1, Q("2.071068 mm")))
sketch10.setExpression("Constraints[9]", "Params.sketch10_width")
pocket8 = body.newObject("PartDesign::Pocket", "Pocket007")
pocket8.Profile = sketch10
pocket8.setExpression("Length", "Params.pocket8_length")
body2 = doc.addObject("PartDesign::Body", "Body001")
doc.recompute()

body.Placement = App.Placement(App.Vector(0, 103.75, 2), App.Rotation(App.Vector(0, 0, 1), 0))
boolean = body2.newObject("PartDesign::Boolean", "Boolean")
boolean.Type = "Fuse"
boolean.addObjects([body])

doc.recompute()
